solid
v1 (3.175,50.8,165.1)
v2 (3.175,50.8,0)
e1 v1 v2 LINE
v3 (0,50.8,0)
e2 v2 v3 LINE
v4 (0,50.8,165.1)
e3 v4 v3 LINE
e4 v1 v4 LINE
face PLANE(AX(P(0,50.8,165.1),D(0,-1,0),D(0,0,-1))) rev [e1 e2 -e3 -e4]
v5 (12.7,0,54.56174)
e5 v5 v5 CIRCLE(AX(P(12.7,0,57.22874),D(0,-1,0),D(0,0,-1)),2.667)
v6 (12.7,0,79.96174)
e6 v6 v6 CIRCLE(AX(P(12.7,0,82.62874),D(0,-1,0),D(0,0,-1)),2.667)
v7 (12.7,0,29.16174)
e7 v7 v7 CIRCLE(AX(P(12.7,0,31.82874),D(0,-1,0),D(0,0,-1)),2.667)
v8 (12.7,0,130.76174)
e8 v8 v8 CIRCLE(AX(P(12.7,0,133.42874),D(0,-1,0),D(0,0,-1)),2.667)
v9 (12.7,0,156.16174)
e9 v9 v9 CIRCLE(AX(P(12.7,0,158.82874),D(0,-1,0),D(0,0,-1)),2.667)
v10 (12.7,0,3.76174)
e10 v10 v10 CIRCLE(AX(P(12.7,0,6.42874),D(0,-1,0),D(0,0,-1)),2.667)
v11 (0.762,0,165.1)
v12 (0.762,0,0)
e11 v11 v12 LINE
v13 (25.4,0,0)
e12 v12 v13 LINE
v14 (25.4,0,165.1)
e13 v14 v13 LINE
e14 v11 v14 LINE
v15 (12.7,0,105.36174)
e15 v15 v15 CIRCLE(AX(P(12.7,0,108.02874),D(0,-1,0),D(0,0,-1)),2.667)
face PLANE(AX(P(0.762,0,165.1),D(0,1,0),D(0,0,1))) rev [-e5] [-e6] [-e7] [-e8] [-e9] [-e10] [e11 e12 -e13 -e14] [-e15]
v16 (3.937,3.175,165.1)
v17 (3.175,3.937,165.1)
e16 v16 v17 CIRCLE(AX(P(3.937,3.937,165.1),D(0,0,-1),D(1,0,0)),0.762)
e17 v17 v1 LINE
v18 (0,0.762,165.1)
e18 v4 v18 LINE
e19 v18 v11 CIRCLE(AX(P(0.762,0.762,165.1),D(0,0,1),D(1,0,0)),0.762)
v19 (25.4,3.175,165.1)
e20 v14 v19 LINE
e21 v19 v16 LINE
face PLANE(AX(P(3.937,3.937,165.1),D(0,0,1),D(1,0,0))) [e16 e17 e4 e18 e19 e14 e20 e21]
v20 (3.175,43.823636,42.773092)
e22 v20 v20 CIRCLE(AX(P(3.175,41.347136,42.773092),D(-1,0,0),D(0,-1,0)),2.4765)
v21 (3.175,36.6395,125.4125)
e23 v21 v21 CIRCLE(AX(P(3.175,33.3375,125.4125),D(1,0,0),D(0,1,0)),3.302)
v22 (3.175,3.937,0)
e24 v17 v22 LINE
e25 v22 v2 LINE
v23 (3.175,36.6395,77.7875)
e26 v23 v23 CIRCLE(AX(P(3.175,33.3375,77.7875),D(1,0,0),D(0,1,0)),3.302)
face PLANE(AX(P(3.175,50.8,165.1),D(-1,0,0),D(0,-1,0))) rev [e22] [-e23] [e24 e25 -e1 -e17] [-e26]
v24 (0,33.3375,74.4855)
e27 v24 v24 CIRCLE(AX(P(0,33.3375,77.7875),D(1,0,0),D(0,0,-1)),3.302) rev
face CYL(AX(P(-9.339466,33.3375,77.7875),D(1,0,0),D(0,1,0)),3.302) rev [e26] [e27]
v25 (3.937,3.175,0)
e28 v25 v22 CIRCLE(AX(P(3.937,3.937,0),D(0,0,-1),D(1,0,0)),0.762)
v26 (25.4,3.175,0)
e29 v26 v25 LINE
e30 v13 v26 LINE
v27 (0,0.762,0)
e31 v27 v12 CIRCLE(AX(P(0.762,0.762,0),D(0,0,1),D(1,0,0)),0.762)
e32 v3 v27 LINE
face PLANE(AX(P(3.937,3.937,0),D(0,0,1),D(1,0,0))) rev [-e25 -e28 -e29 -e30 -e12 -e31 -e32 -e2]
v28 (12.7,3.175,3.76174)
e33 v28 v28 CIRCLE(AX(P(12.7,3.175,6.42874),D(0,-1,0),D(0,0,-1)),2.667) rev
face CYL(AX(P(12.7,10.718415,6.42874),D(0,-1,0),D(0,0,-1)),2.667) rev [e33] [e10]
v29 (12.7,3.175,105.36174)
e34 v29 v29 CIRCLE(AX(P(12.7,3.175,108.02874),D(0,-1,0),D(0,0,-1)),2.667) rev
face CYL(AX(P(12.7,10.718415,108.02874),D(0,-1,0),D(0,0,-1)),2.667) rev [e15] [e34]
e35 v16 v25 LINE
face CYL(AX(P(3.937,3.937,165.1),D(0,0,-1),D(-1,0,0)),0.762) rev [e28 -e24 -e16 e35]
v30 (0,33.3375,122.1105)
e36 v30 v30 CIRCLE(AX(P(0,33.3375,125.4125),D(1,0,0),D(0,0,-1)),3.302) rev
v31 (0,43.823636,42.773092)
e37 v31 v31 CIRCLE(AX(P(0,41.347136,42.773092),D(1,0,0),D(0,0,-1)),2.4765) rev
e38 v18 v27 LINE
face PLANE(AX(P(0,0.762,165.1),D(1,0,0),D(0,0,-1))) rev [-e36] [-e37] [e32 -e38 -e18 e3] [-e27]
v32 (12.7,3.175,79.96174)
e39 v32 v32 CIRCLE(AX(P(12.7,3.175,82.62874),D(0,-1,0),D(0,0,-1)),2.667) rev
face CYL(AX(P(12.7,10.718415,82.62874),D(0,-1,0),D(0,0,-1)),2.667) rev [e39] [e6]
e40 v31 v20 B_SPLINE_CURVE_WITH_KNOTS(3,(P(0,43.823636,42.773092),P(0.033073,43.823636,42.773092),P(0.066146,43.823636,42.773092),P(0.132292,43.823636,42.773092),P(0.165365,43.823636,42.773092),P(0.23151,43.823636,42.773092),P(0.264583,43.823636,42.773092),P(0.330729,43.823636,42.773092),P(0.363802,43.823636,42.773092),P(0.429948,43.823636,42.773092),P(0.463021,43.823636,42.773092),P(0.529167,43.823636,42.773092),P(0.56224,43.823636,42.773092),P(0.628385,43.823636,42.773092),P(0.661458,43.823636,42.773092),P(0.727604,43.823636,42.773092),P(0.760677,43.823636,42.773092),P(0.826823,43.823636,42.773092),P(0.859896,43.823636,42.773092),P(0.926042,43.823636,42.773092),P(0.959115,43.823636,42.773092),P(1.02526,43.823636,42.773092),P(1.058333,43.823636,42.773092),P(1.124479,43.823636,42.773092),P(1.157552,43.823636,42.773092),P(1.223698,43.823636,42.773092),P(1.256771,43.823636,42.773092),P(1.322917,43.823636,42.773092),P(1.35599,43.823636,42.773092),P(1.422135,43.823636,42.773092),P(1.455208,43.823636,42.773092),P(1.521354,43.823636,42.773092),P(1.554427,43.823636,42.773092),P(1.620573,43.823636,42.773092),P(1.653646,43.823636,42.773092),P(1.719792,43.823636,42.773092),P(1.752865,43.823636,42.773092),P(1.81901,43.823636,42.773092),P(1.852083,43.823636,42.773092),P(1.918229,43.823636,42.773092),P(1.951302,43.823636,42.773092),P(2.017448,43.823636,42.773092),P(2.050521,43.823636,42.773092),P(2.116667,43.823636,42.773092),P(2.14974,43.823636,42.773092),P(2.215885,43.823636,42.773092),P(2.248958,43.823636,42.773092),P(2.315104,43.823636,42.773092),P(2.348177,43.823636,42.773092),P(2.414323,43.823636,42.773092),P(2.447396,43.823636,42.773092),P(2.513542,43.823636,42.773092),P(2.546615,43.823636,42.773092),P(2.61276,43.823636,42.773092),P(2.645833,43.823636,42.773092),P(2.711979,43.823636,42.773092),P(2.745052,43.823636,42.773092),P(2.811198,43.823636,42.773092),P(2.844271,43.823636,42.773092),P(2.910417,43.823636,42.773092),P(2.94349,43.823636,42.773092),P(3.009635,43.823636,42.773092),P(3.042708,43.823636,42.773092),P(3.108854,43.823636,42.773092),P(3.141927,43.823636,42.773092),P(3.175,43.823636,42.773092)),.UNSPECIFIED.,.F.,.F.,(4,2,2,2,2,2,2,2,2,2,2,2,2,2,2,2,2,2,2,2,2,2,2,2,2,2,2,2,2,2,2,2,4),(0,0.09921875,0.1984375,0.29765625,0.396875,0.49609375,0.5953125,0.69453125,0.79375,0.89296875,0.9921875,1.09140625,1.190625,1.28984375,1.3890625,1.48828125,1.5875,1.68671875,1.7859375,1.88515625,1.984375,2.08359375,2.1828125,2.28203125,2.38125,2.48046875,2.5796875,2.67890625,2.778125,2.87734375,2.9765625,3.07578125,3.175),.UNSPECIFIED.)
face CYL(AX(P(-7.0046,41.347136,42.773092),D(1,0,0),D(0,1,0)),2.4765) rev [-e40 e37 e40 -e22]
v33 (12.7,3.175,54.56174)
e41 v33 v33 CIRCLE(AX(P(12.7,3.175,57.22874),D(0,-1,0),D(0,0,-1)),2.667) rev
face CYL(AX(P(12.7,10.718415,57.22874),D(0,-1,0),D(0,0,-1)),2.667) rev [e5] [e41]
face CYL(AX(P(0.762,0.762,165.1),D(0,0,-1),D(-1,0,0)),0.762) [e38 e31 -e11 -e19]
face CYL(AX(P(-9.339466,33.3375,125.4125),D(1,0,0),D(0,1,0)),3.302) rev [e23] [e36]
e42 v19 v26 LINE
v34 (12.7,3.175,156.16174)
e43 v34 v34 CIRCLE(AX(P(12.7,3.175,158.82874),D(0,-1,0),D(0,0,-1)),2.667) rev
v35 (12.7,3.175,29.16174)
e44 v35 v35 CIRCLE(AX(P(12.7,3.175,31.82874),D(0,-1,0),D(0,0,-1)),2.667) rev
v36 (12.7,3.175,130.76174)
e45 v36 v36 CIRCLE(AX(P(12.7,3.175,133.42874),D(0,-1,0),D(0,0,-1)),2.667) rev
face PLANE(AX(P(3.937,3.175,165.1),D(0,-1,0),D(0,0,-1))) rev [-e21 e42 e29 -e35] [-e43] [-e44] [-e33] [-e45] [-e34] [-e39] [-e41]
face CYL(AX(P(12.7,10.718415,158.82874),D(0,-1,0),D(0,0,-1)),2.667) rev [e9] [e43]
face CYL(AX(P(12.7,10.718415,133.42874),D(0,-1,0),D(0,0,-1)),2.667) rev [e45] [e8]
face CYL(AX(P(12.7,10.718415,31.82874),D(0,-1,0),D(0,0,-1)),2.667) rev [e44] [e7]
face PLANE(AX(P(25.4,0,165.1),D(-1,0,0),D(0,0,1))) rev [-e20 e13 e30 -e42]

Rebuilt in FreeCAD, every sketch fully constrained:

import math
import FreeCAD as App
import Part
import Sketcher

V = App.Vector
Q = App.Units.Quantity

doc = App.newDocument("Part")
body = doc.addObject("PartDesign::Body", "Body")

# Sketch on XY plane
sketch1 = body.newObject("Sketcher::SketchObject", "Sketch")
sketch1.AttachmentSupport = (doc.getObject("XY_Plane"), [""])
sketch1.MapMode = "FlatFace"
sketch1.addGeometry([
    Part.LineSegment(V(3.2, 3.9, 0), V(3.2, 50.8, 0)),  # 0
    Part.LineSegment(V(3.2, 50.8, 0), V(0, 50.8, 0)),  # 1
    Part.LineSegment(V(0, 50.8, 0), V(0, 0.8, 0)),  # 2
    Part.ArcOfCircle(Part.Circle(V(0.8, 0.8, 0), V(0, 0, 1), 0.8), math.radians(-180), math.radians(-90)),  # 3
    Part.LineSegment(V(0.8, 0, 0), V(25.4, 0, 0)),  # 4
    Part.LineSegment(V(25.4, 0, 0), V(25.4, 3.2, 0)),  # 5
    Part.LineSegment(V(25.4, 3.2, 0), V(3.9, 3.2, 0)),  # 6
    Part.ArcOfCircle(Part.Circle(V(3.9, 3.9, 0), V(0, 0, 1), 0.8), math.radians(-180), math.radians(-90)),  # 7
], False)
sketch1.addConstraint([
    Sketcher.Constraint("Coincident", 0, 2, 1, 1),
    Sketcher.Constraint("Coincident", 1, 2, 2, 1),
    Sketcher.Constraint("Tangent", 2, 2, 3, 1),
    Sketcher.Constraint("Tangent", 3, 2, 4, 1),
    Sketcher.Constraint("Coincident", 4, 2, 5, 1),
    Sketcher.Constraint("Coincident", 5, 2, 6, 1),
    Sketcher.Constraint("Tangent", 6, 2, 7, 2),
    Sketcher.Constraint("Tangent", 7, 1, 0, 1),
    Sketcher.Constraint("Vertical", 0),
    Sketcher.Constraint("Horizontal", 1),
    Sketcher.Constraint("Vertical", 2),
    Sketcher.Constraint("Horizontal", 4),
    Sketcher.Constraint("Vertical", 5),
    Sketcher.Constraint("Horizontal", 6),
    Sketcher.Constraint("Equal", 3, 7),
    Sketcher.Constraint("PointOnObject", 1, 2, -2),
    Sketcher.Constraint("PointOnObject", 3, 2, -1),
    Sketcher.Constraint("Equal", 1, 5),
    Sketcher.Constraint("Radius", 3, Q("0.03 in")),
    Sketcher.Constraint("DistanceY", -1, 1, 0, 2, Q("2 in")),
    Sketcher.Constraint("DistanceX", -1, 1, 4, 2, Q("1 in")),
    Sketcher.Constraint("DistanceX", 1, 2, 1, 1, Q("0.125 in")),
])
pad1 = body.newObject("PartDesign::Pad", "Pad")
pad1.Profile = sketch1
pad1.Length = Q("6.5 in")

# Sketch on XZ plane
sketch2 = body.newObject("Sketcher::SketchObject", "Sketch001")
sketch2.AttachmentSupport = (doc.getObject("XZ_Plane"), [""])
sketch2.MapMode = "FlatFace"
sketch2.addGeometry([
    Part.Circle(V(12.7, 6.4, 0), V(0, 0, 1), 2.7),  # 0
    Part.Circle(V(12.7, 31.8, 0), V(0, 0, 1), 2.7),  # 1
    Part.Circle(V(12.7, 57.2, 0), V(0, 0, 1), 2.7),  # 2
    Part.Circle(V(12.7, 82.6, 0), V(0, 0, 1), 2.7),  # 3
    Part.Circle(V(12.7, 108, 0), V(0, 0, 1), 2.7),  # 4
    Part.Circle(V(12.7, 133.4, 0), V(0, 0, 1), 2.7),  # 5
    Part.Circle(V(12.7, 158.8, 0), V(0, 0, 1), 2.7),  # 6
], False)
sketch2.addConstraint([
    Sketcher.Constraint("Equal", 0, 1),
    Sketcher.Constraint("Equal", 1, 2),
    Sketcher.Constraint("Equal", 2, 3),
    Sketcher.Constraint("Equal", 3, 4),
    Sketcher.Constraint("Equal", 4, 5),
    Sketcher.Constraint("Equal", 5, 6),
    Sketcher.Constraint("Vertical", 0, 3, 1, 3),
    Sketcher.Constraint("Vertical", 1, 3, 2, 3),
    Sketcher.Constraint("Vertical", 2, 3, 3, 3),
    Sketcher.Constraint("Vertical", 3, 3, 4, 3),
    Sketcher.Constraint("Vertical", 4, 3, 5, 3),
    Sketcher.Constraint("Vertical", 5, 3, 6, 3),
    Sketcher.Constraint("Diameter", 0, Q("0.21 in")),
    Sketcher.Constraint("DistanceY", 0, 3, 1, 3, Q("1 in")),
    Sketcher.Constraint("DistanceY", 1, 3, 2, 3, Q("1 in")),
    Sketcher.Constraint("DistanceY", 2, 3, 3, 3, Q("1 in")),
    Sketcher.Constraint("DistanceY", 3, 3, 4, 3, Q("1 in")),
    Sketcher.Constraint("DistanceY", 4, 3, 5, 3, Q("1 in")),
    Sketcher.Constraint("DistanceY", 5, 3, 6, 3, Q("1 in")),
    Sketcher.Constraint("DistanceX", -1, 1, 0, 3, Q("0.5 in")),
    Sketcher.Constraint("DistanceY", -1, 1, 0, 3, Q("0.2531 in")),
])
pocket1 = body.newObject("PartDesign::Pocket", "Pocket")
pocket1.Profile = sketch2
pocket1.Length = Q("0.125 in")

# Sketch on YZ plane
sketch3 = body.newObject("Sketcher::SketchObject", "Sketch002")
sketch3.AttachmentSupport = (doc.getObject("YZ_Plane"), [""])
sketch3.MapMode = "FlatFace"
sketch3.AttachmentOffset = App.Placement(V(0, 0, 0.125 * 25.4), App.Rotation())
sketch3.addGeometry([
    Part.Circle(V(33.3, 77.8, 0), V(0, 0, 1), 3.3),
    Part.Circle(V(33.3, 125.4, 0), V(0, 0, 1), 3.3),
], False)
sketch3.addConstraint([
    Sketcher.Constraint("Equal", 0, 1),
    Sketcher.Constraint("Vertical", 0, 3, 1, 3),
    Sketcher.Constraint("Diameter", 0, Q("0.26 in")),
    Sketcher.Constraint("DistanceX", -1, 1, 0, 3, Q("1.3125 in")),
    Sketcher.Constraint("DistanceY", -1, 1, 0, 3, Q("3.0625 in")),
    Sketcher.Constraint("DistanceY", -1, 1, 1, 3, Q("4.9375 in")),
])
pocket2 = body.newObject("PartDesign::Pocket", "Pocket001")
pocket2.Profile = sketch3
pocket2.Length = Q("0.125 in")

# Sketch on YZ plane
sketch4 = body.newObject("Sketcher::SketchObject", "Sketch003")
sketch4.AttachmentSupport = (doc.getObject("YZ_Plane"), [""])
sketch4.MapMode = "FlatFace"
sketch4.AttachmentOffset = App.Placement(V(0, 0, 0.25 * 25.4), App.Rotation())
sketch4.addGeometry(Part.Circle(V(41.3, 42.8, 0), V(0, 0, 1), 2.5), False)
sketch4.addConstraint([
    Sketcher.Constraint("Diameter", 0, Q("0.195 in")),
    Sketcher.Constraint("DistanceY", -1, 1, 0, 3, 42.773092),
    Sketcher.Constraint("DistanceX", -1, 1, 0, 3, 41.347136),
])
pocket3 = body.newObject("PartDesign::Pocket", "Pocket002")
pocket3.Profile = sketch4
pocket3.Length = Q("0.25 in")

doc.recompute()
